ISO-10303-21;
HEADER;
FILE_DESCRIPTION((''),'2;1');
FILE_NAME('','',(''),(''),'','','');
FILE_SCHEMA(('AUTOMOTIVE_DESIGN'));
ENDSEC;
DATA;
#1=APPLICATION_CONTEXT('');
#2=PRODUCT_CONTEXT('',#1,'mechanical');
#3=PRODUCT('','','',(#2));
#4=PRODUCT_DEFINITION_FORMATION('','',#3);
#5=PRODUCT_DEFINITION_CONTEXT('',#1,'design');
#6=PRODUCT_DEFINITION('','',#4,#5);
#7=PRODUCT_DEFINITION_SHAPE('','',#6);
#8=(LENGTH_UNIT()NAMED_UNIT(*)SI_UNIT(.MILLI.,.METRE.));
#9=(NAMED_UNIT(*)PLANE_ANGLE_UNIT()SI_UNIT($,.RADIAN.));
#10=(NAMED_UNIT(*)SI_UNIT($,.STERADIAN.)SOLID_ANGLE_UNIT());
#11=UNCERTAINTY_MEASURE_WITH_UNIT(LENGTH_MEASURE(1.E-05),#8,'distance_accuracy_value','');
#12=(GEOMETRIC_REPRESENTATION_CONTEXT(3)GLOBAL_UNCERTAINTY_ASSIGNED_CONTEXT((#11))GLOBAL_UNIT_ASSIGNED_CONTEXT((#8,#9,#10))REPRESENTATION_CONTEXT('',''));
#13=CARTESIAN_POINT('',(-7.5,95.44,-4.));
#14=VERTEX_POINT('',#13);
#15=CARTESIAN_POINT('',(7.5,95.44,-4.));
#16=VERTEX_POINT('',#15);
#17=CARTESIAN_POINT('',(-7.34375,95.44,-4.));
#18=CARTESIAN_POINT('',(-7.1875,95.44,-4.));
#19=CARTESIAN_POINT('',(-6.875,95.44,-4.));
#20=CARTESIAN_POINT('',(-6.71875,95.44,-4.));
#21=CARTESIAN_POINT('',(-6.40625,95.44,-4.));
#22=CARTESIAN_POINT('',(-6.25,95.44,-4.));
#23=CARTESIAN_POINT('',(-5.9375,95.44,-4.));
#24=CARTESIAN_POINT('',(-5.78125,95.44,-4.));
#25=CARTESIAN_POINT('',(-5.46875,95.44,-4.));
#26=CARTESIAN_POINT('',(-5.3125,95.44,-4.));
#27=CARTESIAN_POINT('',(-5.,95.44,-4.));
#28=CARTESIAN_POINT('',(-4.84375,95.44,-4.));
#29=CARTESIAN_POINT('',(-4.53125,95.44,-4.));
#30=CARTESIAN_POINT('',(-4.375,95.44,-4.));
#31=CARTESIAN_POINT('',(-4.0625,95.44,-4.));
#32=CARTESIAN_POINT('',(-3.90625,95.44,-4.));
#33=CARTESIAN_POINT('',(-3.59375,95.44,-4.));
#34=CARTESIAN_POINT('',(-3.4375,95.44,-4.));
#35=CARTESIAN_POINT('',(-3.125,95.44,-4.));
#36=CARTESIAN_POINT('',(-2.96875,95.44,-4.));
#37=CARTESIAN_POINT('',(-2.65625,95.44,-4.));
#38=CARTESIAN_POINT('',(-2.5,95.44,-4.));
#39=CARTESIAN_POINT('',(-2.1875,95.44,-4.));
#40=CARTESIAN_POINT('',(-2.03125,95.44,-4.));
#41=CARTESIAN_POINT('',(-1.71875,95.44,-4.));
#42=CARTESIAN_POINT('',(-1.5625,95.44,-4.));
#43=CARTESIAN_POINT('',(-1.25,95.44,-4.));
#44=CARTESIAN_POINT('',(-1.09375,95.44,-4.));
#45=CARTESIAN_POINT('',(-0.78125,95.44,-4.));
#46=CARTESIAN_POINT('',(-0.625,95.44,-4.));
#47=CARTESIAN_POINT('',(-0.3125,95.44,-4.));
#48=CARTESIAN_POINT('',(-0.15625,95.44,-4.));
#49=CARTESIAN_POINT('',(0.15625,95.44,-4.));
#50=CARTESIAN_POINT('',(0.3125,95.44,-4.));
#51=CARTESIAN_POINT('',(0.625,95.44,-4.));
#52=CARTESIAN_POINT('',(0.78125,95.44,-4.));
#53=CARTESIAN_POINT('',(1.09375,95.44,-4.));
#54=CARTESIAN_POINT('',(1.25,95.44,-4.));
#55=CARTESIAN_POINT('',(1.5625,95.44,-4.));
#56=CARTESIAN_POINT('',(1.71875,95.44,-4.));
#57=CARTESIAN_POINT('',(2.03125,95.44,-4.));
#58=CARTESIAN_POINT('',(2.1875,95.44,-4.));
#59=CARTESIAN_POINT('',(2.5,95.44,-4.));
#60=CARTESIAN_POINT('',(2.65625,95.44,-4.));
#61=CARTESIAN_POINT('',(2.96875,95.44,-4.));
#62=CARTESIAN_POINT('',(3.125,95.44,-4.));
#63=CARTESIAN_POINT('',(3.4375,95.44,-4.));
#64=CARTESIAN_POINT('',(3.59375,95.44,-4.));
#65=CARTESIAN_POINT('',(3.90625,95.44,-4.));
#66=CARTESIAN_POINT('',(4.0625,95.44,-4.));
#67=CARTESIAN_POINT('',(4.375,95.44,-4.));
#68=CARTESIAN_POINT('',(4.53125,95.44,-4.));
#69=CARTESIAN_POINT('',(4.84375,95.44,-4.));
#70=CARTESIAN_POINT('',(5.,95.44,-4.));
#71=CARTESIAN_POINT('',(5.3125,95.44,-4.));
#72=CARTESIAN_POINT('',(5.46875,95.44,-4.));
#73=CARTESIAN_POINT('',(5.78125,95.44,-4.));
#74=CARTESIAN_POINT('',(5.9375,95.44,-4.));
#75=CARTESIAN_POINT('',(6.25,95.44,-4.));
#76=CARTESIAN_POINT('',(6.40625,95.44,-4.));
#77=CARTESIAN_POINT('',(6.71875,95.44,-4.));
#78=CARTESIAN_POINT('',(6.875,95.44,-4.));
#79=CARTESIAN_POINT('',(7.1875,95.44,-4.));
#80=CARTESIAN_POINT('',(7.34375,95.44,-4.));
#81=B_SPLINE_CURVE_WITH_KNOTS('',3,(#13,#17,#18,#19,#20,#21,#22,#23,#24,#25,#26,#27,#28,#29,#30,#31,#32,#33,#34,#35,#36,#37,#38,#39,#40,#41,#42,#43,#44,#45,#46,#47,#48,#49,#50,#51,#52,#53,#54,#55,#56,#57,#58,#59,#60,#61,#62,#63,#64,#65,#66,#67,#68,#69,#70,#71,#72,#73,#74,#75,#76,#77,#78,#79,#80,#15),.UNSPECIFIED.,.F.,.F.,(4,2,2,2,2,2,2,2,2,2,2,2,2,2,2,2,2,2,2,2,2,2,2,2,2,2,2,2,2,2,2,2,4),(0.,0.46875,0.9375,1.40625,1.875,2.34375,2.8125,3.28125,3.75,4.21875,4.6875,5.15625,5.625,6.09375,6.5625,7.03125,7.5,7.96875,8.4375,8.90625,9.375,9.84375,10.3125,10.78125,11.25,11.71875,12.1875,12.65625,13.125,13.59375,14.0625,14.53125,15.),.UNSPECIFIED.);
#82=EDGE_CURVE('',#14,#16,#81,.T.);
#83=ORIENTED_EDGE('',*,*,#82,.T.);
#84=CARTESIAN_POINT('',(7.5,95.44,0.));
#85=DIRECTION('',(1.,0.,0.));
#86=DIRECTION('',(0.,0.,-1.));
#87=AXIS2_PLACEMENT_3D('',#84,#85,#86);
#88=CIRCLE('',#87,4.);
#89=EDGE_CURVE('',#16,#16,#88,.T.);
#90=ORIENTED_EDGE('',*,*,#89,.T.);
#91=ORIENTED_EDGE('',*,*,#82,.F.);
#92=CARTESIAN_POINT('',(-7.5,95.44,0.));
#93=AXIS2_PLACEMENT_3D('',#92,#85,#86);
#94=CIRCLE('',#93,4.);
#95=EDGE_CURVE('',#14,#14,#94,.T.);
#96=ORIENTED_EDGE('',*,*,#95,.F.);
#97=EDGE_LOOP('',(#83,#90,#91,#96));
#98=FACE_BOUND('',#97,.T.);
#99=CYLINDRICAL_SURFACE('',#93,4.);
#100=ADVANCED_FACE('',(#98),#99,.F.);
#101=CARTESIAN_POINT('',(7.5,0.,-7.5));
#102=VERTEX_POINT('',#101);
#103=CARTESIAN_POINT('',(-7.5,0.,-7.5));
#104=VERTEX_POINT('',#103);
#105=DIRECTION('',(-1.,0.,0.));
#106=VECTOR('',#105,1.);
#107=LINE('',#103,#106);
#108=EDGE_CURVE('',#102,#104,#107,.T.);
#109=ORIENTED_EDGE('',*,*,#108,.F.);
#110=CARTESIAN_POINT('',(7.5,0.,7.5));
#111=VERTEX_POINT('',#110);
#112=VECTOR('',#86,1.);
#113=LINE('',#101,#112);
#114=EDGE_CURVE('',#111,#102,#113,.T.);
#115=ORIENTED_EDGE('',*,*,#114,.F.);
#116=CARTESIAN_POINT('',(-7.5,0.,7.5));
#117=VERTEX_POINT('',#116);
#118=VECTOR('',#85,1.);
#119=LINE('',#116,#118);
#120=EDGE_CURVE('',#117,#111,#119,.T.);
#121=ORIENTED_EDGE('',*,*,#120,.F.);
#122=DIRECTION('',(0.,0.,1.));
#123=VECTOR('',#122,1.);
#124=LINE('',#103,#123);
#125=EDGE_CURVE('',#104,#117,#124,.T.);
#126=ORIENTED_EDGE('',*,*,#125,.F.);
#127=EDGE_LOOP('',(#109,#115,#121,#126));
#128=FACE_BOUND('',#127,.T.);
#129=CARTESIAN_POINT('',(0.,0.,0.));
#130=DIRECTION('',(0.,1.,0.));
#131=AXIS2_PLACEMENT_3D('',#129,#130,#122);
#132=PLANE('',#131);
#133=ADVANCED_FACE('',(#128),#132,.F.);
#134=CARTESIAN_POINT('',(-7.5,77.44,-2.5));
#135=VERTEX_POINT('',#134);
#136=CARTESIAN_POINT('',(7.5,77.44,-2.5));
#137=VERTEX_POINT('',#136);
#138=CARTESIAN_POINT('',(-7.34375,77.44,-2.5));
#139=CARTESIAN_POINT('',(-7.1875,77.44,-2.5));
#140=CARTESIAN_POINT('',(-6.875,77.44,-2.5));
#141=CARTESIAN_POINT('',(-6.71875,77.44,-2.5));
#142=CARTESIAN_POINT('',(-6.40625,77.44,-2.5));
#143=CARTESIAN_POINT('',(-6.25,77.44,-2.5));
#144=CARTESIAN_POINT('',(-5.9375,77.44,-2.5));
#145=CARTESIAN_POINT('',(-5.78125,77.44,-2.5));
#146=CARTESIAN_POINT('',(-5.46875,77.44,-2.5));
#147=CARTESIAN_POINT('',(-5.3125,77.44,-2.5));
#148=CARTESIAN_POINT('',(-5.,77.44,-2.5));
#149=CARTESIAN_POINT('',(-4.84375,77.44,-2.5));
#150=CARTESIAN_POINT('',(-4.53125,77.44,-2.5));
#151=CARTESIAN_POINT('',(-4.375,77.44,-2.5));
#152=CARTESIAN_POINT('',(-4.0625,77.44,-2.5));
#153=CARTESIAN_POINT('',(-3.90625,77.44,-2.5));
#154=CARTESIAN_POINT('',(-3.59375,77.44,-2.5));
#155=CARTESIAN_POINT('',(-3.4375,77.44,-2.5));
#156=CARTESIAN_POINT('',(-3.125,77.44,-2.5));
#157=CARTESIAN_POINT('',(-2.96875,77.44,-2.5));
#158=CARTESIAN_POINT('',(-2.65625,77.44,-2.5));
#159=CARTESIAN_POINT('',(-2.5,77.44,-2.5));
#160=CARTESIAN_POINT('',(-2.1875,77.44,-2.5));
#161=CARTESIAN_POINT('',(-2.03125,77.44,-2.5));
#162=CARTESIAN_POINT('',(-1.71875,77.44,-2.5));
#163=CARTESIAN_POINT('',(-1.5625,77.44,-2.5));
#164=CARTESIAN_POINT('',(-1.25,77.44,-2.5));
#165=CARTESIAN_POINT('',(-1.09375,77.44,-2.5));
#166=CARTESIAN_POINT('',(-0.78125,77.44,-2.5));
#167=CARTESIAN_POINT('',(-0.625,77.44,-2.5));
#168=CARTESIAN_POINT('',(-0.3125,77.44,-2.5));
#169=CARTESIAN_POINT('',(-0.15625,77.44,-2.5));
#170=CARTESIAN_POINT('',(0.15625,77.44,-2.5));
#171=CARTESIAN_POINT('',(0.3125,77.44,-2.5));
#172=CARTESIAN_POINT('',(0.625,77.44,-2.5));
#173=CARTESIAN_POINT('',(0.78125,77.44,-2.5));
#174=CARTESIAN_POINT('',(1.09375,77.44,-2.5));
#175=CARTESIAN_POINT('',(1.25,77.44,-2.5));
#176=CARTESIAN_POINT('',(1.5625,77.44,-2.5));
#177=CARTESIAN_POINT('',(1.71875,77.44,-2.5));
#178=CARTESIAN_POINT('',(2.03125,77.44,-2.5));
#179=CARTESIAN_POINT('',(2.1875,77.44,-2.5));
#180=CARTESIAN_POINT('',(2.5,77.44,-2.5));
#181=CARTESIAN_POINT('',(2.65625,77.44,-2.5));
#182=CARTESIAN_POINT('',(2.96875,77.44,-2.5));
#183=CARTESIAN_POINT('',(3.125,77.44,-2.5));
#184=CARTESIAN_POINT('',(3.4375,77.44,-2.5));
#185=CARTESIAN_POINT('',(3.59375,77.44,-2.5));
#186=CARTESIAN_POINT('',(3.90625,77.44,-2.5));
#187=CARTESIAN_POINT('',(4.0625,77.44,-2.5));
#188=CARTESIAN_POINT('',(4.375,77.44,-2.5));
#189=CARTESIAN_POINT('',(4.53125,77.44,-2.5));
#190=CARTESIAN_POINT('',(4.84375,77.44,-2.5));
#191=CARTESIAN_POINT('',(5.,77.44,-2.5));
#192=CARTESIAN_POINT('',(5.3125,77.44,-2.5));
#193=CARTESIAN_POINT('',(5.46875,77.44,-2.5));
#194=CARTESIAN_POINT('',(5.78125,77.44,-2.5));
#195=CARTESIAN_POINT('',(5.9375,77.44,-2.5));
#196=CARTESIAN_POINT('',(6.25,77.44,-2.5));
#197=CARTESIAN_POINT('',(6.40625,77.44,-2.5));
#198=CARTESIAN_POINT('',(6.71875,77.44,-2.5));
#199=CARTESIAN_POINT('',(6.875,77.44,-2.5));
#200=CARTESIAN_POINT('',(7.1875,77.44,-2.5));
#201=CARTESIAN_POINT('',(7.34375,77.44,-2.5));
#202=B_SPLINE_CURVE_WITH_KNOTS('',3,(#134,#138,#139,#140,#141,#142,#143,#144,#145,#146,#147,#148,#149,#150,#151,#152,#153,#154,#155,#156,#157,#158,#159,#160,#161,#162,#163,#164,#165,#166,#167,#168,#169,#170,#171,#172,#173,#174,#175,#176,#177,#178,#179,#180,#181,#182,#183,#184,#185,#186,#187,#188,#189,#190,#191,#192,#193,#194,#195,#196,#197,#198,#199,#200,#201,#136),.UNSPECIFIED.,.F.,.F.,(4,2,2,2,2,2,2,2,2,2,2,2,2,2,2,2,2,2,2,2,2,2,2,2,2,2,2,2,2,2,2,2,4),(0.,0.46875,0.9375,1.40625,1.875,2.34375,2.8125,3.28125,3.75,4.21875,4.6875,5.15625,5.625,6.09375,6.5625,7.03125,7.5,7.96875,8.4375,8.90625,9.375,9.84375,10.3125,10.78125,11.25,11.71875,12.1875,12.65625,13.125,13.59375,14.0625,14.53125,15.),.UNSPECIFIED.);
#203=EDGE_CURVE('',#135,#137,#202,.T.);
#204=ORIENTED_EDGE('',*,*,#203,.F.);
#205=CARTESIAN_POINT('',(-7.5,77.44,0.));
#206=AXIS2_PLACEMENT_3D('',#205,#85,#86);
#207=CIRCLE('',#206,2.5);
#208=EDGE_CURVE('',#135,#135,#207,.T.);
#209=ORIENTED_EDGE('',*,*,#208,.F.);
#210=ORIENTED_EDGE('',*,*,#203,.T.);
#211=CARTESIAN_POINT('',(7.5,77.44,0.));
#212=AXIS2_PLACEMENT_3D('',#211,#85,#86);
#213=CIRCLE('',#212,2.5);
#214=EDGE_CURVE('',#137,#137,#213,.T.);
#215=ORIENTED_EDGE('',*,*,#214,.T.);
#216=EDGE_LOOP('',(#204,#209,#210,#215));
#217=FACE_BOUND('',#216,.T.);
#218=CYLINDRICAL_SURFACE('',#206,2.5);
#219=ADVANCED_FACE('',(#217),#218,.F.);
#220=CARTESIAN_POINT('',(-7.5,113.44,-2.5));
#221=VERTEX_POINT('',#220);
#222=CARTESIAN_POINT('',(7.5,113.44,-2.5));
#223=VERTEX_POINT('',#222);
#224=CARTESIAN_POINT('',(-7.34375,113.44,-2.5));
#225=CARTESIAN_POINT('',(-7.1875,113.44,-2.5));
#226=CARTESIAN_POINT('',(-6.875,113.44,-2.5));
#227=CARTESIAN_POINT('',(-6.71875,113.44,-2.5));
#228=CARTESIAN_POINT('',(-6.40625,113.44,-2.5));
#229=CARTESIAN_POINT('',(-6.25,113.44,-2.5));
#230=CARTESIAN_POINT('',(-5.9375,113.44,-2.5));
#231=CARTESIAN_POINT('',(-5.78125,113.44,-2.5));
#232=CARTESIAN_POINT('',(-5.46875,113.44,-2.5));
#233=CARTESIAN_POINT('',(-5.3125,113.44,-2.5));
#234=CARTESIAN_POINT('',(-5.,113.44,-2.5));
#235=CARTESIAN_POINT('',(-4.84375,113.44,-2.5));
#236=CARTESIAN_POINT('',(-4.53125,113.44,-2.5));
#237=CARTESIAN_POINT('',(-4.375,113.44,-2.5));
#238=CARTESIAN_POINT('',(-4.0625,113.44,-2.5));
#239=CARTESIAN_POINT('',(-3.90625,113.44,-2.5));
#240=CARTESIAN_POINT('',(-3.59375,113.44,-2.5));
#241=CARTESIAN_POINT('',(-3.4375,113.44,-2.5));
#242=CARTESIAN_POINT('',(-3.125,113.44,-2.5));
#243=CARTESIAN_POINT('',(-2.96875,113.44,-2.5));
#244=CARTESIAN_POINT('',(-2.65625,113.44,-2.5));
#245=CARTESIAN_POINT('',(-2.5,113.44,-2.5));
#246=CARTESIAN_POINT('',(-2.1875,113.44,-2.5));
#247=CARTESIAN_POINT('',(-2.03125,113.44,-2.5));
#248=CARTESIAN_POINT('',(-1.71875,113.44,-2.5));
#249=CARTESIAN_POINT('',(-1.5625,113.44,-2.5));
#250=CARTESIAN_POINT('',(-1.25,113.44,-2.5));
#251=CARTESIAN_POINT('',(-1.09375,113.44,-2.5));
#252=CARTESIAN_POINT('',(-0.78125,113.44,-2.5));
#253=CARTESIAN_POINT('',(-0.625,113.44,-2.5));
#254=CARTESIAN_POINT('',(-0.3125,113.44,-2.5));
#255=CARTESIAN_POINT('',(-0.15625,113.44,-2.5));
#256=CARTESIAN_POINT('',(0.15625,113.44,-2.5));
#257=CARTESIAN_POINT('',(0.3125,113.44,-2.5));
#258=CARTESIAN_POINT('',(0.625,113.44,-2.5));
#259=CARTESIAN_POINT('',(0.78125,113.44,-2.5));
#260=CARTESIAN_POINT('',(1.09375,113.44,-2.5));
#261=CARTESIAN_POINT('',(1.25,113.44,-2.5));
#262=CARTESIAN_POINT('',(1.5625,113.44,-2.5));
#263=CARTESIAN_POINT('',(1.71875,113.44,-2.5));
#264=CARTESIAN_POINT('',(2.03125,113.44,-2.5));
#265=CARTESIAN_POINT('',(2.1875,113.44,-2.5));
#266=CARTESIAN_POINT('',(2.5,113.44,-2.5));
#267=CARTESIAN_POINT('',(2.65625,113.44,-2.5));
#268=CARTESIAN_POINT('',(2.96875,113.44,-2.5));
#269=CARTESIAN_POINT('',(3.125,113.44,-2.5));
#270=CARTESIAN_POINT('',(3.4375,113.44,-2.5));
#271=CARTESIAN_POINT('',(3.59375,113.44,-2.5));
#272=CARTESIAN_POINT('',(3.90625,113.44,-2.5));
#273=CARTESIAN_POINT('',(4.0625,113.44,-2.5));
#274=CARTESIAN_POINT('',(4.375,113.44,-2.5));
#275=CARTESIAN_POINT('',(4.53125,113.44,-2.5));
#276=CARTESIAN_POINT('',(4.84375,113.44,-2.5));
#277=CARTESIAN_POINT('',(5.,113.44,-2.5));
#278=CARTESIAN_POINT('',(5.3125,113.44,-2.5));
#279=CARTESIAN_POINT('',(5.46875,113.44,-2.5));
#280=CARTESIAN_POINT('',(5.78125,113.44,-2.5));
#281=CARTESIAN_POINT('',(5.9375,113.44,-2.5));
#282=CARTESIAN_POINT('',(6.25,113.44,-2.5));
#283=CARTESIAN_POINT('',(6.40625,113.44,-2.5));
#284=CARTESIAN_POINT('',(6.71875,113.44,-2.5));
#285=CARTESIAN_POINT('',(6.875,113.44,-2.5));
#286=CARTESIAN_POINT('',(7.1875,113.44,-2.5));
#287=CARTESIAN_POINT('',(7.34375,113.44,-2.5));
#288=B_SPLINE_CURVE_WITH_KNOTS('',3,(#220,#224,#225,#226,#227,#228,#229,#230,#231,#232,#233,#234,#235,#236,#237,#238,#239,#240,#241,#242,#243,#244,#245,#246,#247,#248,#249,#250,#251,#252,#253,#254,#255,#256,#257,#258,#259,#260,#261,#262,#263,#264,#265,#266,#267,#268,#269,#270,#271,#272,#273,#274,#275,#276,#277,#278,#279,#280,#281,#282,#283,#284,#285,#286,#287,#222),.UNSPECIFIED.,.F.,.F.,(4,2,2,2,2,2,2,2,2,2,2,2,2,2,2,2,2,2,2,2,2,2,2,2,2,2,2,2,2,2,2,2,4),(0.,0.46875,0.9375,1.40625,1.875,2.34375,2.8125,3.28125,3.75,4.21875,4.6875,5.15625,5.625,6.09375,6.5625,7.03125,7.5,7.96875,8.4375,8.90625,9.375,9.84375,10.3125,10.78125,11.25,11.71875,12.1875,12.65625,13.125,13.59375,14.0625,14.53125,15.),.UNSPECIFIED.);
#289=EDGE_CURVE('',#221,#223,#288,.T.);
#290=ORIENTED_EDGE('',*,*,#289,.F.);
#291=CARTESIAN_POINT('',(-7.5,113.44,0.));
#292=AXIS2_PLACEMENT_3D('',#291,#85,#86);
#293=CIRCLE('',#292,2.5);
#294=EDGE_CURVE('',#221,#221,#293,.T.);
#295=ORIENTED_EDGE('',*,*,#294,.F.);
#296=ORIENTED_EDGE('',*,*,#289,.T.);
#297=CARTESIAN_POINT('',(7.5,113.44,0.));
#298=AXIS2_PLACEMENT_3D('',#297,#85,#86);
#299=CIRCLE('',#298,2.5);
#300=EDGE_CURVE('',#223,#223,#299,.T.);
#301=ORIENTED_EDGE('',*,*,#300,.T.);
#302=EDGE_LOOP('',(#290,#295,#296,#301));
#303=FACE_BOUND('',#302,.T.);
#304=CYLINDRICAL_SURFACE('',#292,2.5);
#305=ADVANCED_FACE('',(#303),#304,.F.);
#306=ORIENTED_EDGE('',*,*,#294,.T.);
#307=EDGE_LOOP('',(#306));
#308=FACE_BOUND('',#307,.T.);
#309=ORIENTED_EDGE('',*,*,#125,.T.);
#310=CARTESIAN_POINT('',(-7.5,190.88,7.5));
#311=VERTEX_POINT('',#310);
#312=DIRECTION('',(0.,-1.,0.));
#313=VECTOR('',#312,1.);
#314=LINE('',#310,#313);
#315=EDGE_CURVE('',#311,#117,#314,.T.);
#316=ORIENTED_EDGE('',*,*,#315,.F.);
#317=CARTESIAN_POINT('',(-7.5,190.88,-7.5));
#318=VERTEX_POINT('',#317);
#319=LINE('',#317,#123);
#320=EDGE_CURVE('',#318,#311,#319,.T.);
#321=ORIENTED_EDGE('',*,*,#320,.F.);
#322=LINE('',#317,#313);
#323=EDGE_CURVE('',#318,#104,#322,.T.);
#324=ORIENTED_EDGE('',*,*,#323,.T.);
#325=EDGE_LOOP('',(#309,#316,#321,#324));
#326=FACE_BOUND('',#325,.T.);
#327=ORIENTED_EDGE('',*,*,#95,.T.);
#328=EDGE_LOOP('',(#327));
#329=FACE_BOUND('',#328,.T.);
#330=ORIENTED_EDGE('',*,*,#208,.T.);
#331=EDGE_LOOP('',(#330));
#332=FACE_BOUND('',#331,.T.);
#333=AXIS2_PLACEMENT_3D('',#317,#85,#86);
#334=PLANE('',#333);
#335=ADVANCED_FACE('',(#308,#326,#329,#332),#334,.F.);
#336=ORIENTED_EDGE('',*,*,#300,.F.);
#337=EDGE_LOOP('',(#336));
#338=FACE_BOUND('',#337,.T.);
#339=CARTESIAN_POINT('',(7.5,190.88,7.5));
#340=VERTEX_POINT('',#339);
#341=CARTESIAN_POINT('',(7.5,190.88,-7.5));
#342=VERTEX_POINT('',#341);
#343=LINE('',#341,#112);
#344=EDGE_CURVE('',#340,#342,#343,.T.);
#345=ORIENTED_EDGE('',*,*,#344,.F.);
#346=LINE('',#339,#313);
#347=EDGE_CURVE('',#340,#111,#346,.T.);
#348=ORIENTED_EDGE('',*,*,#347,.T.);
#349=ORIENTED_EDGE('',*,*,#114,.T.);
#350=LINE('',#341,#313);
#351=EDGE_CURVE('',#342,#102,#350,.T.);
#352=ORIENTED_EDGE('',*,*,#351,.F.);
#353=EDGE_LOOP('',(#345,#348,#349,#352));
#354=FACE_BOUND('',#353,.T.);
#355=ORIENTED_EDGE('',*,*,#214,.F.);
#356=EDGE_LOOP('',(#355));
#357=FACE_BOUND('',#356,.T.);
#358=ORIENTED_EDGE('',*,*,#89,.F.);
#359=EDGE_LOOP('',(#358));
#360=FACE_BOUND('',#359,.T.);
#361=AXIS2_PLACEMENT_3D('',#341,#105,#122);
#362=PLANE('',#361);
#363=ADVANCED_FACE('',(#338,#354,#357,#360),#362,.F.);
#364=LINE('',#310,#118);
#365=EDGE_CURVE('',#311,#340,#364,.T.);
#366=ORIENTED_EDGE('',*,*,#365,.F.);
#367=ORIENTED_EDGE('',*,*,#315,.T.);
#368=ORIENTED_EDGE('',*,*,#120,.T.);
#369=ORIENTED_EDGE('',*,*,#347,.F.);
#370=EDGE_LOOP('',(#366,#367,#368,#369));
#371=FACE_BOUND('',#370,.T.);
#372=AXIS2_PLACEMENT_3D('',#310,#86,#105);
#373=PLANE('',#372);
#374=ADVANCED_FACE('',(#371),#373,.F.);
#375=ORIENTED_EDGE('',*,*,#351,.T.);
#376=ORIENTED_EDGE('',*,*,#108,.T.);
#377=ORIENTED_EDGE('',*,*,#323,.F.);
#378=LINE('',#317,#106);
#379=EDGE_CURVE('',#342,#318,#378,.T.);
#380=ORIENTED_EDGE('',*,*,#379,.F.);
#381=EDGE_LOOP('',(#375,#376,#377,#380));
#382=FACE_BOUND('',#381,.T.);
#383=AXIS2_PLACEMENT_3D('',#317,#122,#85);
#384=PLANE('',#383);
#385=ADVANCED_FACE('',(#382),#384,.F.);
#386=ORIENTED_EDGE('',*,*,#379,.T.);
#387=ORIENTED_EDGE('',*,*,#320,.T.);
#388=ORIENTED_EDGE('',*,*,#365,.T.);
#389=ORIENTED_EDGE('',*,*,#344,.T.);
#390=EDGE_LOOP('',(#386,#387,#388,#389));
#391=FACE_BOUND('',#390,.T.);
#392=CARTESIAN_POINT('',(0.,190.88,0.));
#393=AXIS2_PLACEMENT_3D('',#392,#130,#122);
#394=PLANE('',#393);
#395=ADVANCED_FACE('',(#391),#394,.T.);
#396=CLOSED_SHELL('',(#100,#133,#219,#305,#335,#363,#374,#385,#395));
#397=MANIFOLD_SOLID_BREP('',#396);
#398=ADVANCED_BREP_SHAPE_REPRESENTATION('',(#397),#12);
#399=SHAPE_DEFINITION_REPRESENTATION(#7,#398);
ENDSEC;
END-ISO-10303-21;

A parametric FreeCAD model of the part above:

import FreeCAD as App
import Part
import Sketcher
Q = App.Units.Quantity


def add_polygon(sketch, points):
    """Adds a closed chain of lines whose ends are joined by coincident constraints."""
    first, n = sketch.GeometryCount, len(points)
    for a, b in zip(points, points[1:] + points[:1]):
        sketch.addGeometry(Part.LineSegment(App.Vector(*a, 0), App.Vector(*b, 0)), False)
    for i in range(n):
        sketch.addConstraint(Sketcher.Constraint("Coincident", first + i, 2, first + (i + 1) % n, 1))

doc = App.newDocument("Part")
body = doc.addObject("PartDesign::Body", "Body")

# Sketch on XZ plane
sketch1 = doc.addObject("Sketcher::SketchObject", "Sketch")
body.addObject(sketch1)
sketch1.AttachmentSupport = (doc.XZ_Plane, [""])
sketch1.MapMode = "FlatFace"
add_polygon(sketch1, [(-8, -8), (-8, 8), (8, 8), (8, -8)])  # lines 0-3
sketch1.addConstraint(Sketcher.Constraint("Vertical", 0))
sketch1.addConstraint(Sketcher.Constraint("Horizontal", 1))
sketch1.addConstraint(Sketcher.Constraint("Vertical", 2))
sketch1.addConstraint(Sketcher.Constraint("Horizontal", 3))
sketch1.addConstraint(Sketcher.Constraint("Symmetric", 0, 2, 2, 2, -1, 1))
sketch1.addConstraint(Sketcher.Constraint("Equal", 3, 0))
sketch1.addConstraint(Sketcher.Constraint("DistanceX", 1, 1, 1, 2, Q("15 mm")))
pad1 = doc.addObject("PartDesign::Pad", "Pad")
body.addObject(pad1)
pad1.Profile = sketch1
pad1.Length = 190.88
pad1.Reversed = True

# Sketch on YZ plane
sketch2 = doc.addObject("Sketcher::SketchObject", "Sketch001")
body.addObject(sketch2)
sketch2.AttachmentSupport = (doc.YZ_Plane, [""])
sketch2.MapMode = "FlatFace"
sketch2.AttachmentOffset = App.Placement(App.Vector(0, 0, 7.5), App.Rotation())
sketch2.addGeometry(Part.Circle(App.Vector(95.4, 0, 0), App.Vector(0, 0, 1), 4), False)
sketch2.addGeometry(Part.Circle(App.Vector(113.4, 0, 0), App.Vector(0, 0, 1), 2.5), False)
sketch2.addGeometry(Part.Circle(App.Vector(77.4, 0, 0), App.Vector(0, 0, 1), 2.5), False)
sketch2.addConstraint(Sketcher.Constraint("Equal", 1, 2))
sketch2.addConstraint(Sketcher.Constraint("PointOnObject", 0, 3, -1))
sketch2.addConstraint(Sketcher.Constraint("PointOnObject", 1, 3, -1))
sketch2.addConstraint(Sketcher.Constraint("PointOnObject", 2, 3, -1))
sketch2.addConstraint(Sketcher.Constraint("Diameter", 0, Q("8 mm")))
sketch2.addConstraint(Sketcher.Constraint("Diameter", 1, Q("5 mm")))
sketch2.addConstraint(Sketcher.Constraint("DistanceX", 0, 3, 1, 3, Q("18 mm")))
sketch2.addConstraint(Sketcher.Constraint("DistanceX", 2, 3, 0, 3, Q("18 mm")))
sketch2.addConstraint(Sketcher.Constraint("DistanceX", -1, 1, 0, 3, Q("95.44 mm")))
pocket1 = doc.addObject("PartDesign::Pocket", "Pocket")
body.addObject(pocket1)
pocket1.Profile = sketch2
pocket1.Type = "ThroughAll"

doc.recompute()
